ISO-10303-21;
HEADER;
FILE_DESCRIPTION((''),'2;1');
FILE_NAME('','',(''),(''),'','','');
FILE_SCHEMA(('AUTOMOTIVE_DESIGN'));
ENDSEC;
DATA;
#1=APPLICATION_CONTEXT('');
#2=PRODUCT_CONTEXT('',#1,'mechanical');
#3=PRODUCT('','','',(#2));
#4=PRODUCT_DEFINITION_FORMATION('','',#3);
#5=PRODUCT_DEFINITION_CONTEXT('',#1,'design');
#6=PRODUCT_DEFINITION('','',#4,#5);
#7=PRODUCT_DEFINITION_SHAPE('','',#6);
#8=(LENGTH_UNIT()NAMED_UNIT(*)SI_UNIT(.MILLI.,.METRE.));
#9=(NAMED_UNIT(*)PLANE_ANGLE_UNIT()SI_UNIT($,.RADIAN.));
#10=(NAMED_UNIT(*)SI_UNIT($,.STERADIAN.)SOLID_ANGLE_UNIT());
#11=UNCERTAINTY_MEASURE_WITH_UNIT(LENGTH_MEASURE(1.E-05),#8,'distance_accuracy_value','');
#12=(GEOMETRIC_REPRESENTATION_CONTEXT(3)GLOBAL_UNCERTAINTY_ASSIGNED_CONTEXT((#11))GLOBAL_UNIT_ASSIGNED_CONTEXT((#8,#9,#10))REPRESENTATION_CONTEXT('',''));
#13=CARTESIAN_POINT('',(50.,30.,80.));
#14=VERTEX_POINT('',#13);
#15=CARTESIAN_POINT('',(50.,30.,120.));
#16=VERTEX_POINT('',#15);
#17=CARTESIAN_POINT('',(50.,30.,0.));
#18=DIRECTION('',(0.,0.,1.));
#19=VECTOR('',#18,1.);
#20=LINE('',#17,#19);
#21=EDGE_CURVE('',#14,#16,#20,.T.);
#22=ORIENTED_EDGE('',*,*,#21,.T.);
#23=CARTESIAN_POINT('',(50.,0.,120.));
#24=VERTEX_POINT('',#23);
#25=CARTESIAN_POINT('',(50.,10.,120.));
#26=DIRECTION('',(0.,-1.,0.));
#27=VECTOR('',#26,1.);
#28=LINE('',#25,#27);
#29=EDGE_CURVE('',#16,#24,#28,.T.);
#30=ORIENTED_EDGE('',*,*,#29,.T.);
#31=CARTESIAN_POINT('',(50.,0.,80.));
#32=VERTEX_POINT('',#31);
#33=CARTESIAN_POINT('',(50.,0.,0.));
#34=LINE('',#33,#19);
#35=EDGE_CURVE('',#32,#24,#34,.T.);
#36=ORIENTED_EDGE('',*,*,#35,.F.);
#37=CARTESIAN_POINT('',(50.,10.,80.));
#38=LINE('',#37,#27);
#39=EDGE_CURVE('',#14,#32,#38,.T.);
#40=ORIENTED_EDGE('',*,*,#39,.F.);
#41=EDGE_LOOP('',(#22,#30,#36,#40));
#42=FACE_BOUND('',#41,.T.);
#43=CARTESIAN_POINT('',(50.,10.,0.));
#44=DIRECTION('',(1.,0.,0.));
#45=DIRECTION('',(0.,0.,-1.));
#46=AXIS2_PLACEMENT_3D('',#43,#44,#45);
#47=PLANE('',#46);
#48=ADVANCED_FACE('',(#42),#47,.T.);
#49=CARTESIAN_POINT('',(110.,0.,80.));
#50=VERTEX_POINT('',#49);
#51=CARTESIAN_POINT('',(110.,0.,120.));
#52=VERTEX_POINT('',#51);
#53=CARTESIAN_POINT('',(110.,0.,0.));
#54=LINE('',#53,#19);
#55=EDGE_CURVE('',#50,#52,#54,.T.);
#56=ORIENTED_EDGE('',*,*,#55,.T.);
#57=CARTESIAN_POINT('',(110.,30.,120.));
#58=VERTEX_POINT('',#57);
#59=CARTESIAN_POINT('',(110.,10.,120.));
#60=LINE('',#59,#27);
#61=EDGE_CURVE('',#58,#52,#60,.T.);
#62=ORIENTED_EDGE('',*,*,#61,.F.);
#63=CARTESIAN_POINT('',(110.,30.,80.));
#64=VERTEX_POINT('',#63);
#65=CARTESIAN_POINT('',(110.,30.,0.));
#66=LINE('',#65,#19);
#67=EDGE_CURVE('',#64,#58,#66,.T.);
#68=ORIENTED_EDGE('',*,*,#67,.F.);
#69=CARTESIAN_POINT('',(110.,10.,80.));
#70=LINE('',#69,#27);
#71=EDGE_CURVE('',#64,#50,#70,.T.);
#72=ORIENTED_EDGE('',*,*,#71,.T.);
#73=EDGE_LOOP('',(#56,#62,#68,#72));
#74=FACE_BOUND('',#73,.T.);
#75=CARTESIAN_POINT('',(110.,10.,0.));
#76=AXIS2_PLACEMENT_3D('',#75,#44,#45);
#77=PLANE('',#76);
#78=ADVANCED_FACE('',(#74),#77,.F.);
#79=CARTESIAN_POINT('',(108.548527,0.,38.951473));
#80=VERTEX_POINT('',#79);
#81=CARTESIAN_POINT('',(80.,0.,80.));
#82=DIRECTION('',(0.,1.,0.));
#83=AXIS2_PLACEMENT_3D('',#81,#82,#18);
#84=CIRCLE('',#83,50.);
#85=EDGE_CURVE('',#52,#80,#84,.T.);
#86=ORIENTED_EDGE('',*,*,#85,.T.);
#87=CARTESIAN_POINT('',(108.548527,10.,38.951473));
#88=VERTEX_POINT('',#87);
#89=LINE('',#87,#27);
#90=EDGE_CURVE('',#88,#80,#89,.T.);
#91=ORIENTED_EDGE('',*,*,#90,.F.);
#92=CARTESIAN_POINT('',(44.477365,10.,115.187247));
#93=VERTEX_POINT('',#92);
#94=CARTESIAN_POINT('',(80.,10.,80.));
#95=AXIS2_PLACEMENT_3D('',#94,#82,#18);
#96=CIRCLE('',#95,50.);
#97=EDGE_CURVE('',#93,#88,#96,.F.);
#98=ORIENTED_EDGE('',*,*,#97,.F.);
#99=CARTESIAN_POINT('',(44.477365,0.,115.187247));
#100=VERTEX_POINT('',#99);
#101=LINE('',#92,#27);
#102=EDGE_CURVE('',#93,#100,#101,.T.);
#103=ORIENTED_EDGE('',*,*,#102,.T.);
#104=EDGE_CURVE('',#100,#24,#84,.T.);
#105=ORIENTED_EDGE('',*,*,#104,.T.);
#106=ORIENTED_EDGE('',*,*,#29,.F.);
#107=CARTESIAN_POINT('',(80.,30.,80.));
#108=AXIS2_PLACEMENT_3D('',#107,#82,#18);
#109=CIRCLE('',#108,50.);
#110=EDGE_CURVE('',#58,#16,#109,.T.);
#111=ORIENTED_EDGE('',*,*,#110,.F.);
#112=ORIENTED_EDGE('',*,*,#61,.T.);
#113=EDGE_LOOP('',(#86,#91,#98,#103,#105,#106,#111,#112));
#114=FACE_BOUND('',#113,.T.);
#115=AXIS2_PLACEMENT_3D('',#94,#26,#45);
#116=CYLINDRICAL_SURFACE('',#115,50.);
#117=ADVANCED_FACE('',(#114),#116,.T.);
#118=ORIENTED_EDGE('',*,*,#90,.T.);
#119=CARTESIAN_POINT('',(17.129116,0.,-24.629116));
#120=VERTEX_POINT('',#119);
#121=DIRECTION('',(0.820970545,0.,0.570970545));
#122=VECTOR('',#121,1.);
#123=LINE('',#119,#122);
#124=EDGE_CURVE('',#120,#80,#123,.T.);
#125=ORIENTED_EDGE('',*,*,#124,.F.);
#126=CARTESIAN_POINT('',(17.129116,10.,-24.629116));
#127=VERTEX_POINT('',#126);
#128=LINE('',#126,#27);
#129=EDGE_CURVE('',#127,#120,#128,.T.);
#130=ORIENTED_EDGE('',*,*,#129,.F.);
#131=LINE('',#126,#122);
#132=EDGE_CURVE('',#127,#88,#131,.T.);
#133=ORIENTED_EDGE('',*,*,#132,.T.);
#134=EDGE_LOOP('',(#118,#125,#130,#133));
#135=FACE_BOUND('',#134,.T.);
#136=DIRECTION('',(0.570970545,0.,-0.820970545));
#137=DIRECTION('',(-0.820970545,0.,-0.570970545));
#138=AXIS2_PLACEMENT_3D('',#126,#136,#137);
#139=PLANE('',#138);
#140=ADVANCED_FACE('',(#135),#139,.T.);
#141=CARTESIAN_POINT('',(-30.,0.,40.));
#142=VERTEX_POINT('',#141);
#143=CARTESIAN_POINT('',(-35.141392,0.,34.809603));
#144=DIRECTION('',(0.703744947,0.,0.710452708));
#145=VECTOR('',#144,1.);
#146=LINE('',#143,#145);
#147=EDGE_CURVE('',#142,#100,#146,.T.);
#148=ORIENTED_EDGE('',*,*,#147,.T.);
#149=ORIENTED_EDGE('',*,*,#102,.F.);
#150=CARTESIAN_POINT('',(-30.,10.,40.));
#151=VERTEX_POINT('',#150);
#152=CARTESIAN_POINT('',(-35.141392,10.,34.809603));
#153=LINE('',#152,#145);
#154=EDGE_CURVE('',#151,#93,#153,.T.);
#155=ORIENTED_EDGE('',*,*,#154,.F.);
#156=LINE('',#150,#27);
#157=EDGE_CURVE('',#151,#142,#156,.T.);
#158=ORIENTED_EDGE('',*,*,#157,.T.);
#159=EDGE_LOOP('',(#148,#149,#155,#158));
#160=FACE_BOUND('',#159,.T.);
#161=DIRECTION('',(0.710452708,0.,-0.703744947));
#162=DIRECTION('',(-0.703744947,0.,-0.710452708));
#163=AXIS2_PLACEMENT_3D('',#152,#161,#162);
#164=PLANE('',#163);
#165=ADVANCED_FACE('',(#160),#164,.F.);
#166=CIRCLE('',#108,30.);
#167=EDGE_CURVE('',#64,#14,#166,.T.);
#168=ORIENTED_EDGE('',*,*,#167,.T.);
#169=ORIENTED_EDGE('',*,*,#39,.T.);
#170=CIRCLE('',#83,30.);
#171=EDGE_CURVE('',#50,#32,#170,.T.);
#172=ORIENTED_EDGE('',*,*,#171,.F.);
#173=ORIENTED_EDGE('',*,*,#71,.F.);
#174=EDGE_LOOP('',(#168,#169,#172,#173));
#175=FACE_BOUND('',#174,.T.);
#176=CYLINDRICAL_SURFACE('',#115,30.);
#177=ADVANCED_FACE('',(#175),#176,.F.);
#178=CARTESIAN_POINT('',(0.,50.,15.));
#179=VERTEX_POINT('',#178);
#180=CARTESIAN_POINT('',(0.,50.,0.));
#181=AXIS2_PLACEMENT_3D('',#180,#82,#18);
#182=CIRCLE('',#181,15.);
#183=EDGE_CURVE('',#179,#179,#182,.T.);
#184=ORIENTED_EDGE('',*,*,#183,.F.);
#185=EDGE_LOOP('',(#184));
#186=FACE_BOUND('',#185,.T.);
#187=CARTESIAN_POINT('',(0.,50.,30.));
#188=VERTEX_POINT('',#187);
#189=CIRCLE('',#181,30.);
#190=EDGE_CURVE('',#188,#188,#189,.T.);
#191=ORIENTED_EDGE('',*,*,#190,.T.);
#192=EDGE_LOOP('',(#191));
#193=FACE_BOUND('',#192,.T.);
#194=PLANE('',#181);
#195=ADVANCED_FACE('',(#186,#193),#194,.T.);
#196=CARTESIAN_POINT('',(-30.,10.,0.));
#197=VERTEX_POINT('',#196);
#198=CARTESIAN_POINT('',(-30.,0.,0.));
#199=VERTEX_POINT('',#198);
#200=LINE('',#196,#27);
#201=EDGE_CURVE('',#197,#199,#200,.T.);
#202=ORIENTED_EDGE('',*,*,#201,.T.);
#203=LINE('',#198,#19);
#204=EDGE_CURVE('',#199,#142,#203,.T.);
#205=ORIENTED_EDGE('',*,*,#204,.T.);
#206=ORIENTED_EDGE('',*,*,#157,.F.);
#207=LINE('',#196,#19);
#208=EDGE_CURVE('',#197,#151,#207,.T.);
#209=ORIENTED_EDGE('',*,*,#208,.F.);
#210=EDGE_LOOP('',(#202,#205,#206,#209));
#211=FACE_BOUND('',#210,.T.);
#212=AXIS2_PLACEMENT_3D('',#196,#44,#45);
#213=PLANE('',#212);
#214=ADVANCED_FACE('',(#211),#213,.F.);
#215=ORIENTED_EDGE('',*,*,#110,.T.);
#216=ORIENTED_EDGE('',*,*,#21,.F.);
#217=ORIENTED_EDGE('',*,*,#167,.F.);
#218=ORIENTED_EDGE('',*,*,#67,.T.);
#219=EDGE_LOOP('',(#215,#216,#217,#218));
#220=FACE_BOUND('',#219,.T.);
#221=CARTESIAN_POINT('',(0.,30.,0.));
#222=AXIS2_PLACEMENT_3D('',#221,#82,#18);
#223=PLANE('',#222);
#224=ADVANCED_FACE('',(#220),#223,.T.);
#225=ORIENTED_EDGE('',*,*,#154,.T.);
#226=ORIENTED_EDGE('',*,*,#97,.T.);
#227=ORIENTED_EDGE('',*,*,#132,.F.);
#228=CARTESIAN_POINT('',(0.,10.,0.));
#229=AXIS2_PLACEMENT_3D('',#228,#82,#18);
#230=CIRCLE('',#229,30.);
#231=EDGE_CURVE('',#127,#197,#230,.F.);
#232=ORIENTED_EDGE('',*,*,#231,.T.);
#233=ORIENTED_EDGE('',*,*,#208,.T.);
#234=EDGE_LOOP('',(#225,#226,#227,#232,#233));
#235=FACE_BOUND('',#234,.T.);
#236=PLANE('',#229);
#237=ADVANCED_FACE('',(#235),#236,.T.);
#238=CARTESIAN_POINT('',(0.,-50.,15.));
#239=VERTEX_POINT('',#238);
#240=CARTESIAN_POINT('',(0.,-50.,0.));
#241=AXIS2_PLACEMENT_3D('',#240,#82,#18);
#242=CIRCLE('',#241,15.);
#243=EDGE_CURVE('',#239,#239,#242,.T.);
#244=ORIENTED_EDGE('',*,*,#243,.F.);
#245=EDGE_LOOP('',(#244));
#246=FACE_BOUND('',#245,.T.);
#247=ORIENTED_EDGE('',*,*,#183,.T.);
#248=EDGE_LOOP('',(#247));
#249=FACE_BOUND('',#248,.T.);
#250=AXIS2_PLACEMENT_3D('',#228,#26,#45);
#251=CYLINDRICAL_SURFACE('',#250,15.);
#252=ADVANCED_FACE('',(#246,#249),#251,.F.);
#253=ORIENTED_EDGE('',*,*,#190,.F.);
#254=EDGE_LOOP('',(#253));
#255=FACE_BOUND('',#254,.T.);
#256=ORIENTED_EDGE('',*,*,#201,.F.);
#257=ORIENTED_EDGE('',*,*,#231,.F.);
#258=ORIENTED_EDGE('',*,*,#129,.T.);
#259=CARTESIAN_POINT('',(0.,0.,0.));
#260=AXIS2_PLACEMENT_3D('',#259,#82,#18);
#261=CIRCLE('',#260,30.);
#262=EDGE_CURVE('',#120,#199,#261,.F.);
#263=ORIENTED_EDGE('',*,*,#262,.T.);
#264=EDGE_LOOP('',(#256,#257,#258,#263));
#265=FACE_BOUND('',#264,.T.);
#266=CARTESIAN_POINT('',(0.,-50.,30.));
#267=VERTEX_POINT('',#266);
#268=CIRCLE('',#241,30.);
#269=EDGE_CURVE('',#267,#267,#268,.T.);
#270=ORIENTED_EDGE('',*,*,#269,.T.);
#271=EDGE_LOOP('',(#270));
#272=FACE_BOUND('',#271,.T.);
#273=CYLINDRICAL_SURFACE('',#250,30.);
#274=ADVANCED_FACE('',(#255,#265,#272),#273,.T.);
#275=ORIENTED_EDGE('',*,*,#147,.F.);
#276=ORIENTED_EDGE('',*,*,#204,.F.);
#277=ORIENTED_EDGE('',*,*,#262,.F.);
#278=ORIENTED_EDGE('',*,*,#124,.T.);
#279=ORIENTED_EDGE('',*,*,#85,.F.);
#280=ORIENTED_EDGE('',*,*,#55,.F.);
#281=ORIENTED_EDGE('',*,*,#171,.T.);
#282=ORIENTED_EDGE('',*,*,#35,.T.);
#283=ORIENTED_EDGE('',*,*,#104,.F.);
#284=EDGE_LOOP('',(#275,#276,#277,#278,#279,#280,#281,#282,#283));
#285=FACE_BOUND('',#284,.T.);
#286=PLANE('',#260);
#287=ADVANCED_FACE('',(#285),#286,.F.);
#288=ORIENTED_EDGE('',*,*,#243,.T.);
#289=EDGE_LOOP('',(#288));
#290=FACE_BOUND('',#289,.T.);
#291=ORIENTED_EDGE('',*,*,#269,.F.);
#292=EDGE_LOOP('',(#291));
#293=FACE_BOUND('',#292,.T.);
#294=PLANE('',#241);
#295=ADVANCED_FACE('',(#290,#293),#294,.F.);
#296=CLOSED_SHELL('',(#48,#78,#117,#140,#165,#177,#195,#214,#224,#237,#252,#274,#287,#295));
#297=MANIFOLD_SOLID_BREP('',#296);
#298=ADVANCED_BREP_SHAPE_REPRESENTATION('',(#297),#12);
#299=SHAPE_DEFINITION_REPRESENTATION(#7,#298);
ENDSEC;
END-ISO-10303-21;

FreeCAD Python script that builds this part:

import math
import FreeCAD as App
import Part
import Sketcher

V = App.Vector

doc = App.newDocument("Part")
body = doc.addObject("PartDesign::Body", "Body")

# Sketch on XZ plane
sketch1 = doc.addObject("Sketcher::SketchObject", "Sketch")
body.addObject(sketch1)
sketch1.AttachmentSupport = (doc.XZ_Plane, [""])
sketch1.MapMode = "FlatFace"
sketch1.addGeometry([
    Part.ArcOfCircle(Part.Circle(V(0, 0, 0), V(0, 0, 1), 30), math.radians(180), math.radians(305)),  # 0
    Part.LineSegment(V(-30, 0, 0), V(-30, 40, 0)),  # 1
    Part.LineSegment(V(-30, 40, 0), V(44, 115, 0)),  # 2
    Part.ArcOfCircle(Part.Circle(V(80, 80, 0), V(0, 0, 1), 50), math.radians(126.87), math.radians(135.27)),  # 3
    Part.LineSegment(V(50, 120, 0), V(50, 80, 0)),  # 4
    Part.ArcOfCircle(Part.Circle(V(80, 80, 0), V(0, 0, 1), 30), math.radians(180), math.radians(360)),  # 5
    Part.LineSegment(V(110, 80, 0), V(110, 120, 0)),  # 6
    Part.ArcOfCircle(Part.Circle(V(80, 80, 0), V(0, 0, 1), 50), math.radians(-55), math.radians(53)),  # 7
    Part.LineSegment(V(109, 39, 0), V(17, -25, 0)),  # 8
    Part.Circle(V(0, 0, 0), V(0, 0, 1), 15),  # 9
], False)
sketch1.addConstraint([
    Sketcher.Constraint("Tangent", 0, 1, 1, 1),
    Sketcher.Constraint("Coincident", 1, 2, 2, 1),
    Sketcher.Constraint("Tangent", 2, 2, 3, 2),
    Sketcher.Constraint("Coincident", 3, 1, 4, 1),
    Sketcher.Constraint("Tangent", 4, 2, 5, 1),
    Sketcher.Constraint("Tangent", 5, 2, 6, 1),
    Sketcher.Constraint("Coincident", 6, 2, 7, 2),
    Sketcher.Constraint("Tangent", 7, 1, 8, 1),
    Sketcher.Constraint("Tangent", 8, 2, 0, 2),
    Sketcher.Constraint("Vertical", 1),
    Sketcher.Constraint("Vertical", 4),
    Sketcher.Constraint("Vertical", 6),
    Sketcher.Constraint("Coincident", 0, 3, -1, 1),
    Sketcher.Constraint("Coincident", 9, 3, -1, 1),
    Sketcher.Constraint("Coincident", 5, 3, 3, 3),
    Sketcher.Constraint("Coincident", 7, 3, 3, 3),
    Sketcher.Constraint("Equal", 0, 5),
    Sketcher.Constraint("Equal", 3, 7),
    Sketcher.Constraint("Equal", 1, 4),
    Sketcher.Constraint("Diameter", 9, 30.0),
    Sketcher.Constraint("Radius", 0, 30.0),
    Sketcher.Constraint("Radius", 3, 50.0),
    Sketcher.Constraint("DistanceX", -1, 1, 3, 3, 80.0),
    Sketcher.Constraint("DistanceY", -1, 1, 3, 3, 80.0),
])
pad1 = doc.addObject("PartDesign::Pad", "Pad")
body.addObject(pad1)
pad1.Profile = sketch1
pad1.Length = 10
pad1.Reversed = True

# Sketch on XZ plane
sketch2 = doc.addObject("Sketcher::SketchObject", "Sketch001")
body.addObject(sketch2)
sketch2.AttachmentSupport = (doc.XZ_Plane, [""])
sketch2.MapMode = "FlatFace"
sketch2.addGeometry([
    Part.Circle(V(0, 0, 0), V(0, 0, 1), 30),
    Part.Circle(V(0, 0, 0), V(0, 0, 1), 15),
], False)
sketch2.addConstraint([
    Sketcher.Constraint("Coincident", 0, 3, -1, 1),
    Sketcher.Constraint("Coincident", 1, 3, -1, 1),
    Sketcher.Constraint("Diameter", 0, 60.0),
    Sketcher.Constraint("Diameter", 1, 30.0),
])
pad2 = doc.addObject("PartDesign::Pad", "Pad001")
body.addObject(pad2)
pad2.Profile = sketch2
pad2.Type = "TwoLengths"
pad2.Length = 50
pad2.Length2 = 50
pad2.Reversed = True

# Sketch on XZ plane
sketch3 = doc.addObject("Sketcher::SketchObject", "Sketch002")
body.addObject(sketch3)
sketch3.AttachmentSupport = (doc.XZ_Plane, [""])
sketch3.MapMode = "FlatFace"
sketch3.addGeometry([
    Part.LineSegment(V(110, 80, 0), V(110, 120, 0)),
    Part.ArcOfCircle(Part.Circle(V(80, 80, 0), V(0, 0, 1), 50), math.radians(127), math.radians(413)),
    Part.LineSegment(V(50, 120, 0), V(50, 80, 0)),
    Part.ArcOfCircle(Part.Circle(V(80, 80, 0), V(0, 0, 1), 30), math.radians(180), math.radians(360)),
], False)
sketch3.addConstraint([
    Sketcher.Constraint("Coincident", 0, 2, 1, 2),
    Sketcher.Constraint("Coincident", 1, 1, 2, 1),
    Sketcher.Constraint("Tangent", 2, 2, 3, 1),
    Sketcher.Constraint("Tangent", 3, 2, 0, 1),
    Sketcher.Constraint("Vertical", 0),
    Sketcher.Constraint("Vertical", 2),
    Sketcher.Constraint("Coincident", 3, 3, 1, 3),
    Sketcher.Constraint("Radius", 1, 50.0),
    Sketcher.Constraint("Radius", 3, 30.0),
    Sketcher.Constraint("DistanceX", -1, 1, 1, 3, 80.0),
    Sketcher.Constraint("DistanceY", -1, 1, 1, 3, 80.0),
])
pad3 = doc.addObject("PartDesign::Pad", "Pad002")
body.addObject(pad3)
pad3.Profile = sketch3
pad3.Length = 30
pad3.Reversed = True

doc.recompute()
